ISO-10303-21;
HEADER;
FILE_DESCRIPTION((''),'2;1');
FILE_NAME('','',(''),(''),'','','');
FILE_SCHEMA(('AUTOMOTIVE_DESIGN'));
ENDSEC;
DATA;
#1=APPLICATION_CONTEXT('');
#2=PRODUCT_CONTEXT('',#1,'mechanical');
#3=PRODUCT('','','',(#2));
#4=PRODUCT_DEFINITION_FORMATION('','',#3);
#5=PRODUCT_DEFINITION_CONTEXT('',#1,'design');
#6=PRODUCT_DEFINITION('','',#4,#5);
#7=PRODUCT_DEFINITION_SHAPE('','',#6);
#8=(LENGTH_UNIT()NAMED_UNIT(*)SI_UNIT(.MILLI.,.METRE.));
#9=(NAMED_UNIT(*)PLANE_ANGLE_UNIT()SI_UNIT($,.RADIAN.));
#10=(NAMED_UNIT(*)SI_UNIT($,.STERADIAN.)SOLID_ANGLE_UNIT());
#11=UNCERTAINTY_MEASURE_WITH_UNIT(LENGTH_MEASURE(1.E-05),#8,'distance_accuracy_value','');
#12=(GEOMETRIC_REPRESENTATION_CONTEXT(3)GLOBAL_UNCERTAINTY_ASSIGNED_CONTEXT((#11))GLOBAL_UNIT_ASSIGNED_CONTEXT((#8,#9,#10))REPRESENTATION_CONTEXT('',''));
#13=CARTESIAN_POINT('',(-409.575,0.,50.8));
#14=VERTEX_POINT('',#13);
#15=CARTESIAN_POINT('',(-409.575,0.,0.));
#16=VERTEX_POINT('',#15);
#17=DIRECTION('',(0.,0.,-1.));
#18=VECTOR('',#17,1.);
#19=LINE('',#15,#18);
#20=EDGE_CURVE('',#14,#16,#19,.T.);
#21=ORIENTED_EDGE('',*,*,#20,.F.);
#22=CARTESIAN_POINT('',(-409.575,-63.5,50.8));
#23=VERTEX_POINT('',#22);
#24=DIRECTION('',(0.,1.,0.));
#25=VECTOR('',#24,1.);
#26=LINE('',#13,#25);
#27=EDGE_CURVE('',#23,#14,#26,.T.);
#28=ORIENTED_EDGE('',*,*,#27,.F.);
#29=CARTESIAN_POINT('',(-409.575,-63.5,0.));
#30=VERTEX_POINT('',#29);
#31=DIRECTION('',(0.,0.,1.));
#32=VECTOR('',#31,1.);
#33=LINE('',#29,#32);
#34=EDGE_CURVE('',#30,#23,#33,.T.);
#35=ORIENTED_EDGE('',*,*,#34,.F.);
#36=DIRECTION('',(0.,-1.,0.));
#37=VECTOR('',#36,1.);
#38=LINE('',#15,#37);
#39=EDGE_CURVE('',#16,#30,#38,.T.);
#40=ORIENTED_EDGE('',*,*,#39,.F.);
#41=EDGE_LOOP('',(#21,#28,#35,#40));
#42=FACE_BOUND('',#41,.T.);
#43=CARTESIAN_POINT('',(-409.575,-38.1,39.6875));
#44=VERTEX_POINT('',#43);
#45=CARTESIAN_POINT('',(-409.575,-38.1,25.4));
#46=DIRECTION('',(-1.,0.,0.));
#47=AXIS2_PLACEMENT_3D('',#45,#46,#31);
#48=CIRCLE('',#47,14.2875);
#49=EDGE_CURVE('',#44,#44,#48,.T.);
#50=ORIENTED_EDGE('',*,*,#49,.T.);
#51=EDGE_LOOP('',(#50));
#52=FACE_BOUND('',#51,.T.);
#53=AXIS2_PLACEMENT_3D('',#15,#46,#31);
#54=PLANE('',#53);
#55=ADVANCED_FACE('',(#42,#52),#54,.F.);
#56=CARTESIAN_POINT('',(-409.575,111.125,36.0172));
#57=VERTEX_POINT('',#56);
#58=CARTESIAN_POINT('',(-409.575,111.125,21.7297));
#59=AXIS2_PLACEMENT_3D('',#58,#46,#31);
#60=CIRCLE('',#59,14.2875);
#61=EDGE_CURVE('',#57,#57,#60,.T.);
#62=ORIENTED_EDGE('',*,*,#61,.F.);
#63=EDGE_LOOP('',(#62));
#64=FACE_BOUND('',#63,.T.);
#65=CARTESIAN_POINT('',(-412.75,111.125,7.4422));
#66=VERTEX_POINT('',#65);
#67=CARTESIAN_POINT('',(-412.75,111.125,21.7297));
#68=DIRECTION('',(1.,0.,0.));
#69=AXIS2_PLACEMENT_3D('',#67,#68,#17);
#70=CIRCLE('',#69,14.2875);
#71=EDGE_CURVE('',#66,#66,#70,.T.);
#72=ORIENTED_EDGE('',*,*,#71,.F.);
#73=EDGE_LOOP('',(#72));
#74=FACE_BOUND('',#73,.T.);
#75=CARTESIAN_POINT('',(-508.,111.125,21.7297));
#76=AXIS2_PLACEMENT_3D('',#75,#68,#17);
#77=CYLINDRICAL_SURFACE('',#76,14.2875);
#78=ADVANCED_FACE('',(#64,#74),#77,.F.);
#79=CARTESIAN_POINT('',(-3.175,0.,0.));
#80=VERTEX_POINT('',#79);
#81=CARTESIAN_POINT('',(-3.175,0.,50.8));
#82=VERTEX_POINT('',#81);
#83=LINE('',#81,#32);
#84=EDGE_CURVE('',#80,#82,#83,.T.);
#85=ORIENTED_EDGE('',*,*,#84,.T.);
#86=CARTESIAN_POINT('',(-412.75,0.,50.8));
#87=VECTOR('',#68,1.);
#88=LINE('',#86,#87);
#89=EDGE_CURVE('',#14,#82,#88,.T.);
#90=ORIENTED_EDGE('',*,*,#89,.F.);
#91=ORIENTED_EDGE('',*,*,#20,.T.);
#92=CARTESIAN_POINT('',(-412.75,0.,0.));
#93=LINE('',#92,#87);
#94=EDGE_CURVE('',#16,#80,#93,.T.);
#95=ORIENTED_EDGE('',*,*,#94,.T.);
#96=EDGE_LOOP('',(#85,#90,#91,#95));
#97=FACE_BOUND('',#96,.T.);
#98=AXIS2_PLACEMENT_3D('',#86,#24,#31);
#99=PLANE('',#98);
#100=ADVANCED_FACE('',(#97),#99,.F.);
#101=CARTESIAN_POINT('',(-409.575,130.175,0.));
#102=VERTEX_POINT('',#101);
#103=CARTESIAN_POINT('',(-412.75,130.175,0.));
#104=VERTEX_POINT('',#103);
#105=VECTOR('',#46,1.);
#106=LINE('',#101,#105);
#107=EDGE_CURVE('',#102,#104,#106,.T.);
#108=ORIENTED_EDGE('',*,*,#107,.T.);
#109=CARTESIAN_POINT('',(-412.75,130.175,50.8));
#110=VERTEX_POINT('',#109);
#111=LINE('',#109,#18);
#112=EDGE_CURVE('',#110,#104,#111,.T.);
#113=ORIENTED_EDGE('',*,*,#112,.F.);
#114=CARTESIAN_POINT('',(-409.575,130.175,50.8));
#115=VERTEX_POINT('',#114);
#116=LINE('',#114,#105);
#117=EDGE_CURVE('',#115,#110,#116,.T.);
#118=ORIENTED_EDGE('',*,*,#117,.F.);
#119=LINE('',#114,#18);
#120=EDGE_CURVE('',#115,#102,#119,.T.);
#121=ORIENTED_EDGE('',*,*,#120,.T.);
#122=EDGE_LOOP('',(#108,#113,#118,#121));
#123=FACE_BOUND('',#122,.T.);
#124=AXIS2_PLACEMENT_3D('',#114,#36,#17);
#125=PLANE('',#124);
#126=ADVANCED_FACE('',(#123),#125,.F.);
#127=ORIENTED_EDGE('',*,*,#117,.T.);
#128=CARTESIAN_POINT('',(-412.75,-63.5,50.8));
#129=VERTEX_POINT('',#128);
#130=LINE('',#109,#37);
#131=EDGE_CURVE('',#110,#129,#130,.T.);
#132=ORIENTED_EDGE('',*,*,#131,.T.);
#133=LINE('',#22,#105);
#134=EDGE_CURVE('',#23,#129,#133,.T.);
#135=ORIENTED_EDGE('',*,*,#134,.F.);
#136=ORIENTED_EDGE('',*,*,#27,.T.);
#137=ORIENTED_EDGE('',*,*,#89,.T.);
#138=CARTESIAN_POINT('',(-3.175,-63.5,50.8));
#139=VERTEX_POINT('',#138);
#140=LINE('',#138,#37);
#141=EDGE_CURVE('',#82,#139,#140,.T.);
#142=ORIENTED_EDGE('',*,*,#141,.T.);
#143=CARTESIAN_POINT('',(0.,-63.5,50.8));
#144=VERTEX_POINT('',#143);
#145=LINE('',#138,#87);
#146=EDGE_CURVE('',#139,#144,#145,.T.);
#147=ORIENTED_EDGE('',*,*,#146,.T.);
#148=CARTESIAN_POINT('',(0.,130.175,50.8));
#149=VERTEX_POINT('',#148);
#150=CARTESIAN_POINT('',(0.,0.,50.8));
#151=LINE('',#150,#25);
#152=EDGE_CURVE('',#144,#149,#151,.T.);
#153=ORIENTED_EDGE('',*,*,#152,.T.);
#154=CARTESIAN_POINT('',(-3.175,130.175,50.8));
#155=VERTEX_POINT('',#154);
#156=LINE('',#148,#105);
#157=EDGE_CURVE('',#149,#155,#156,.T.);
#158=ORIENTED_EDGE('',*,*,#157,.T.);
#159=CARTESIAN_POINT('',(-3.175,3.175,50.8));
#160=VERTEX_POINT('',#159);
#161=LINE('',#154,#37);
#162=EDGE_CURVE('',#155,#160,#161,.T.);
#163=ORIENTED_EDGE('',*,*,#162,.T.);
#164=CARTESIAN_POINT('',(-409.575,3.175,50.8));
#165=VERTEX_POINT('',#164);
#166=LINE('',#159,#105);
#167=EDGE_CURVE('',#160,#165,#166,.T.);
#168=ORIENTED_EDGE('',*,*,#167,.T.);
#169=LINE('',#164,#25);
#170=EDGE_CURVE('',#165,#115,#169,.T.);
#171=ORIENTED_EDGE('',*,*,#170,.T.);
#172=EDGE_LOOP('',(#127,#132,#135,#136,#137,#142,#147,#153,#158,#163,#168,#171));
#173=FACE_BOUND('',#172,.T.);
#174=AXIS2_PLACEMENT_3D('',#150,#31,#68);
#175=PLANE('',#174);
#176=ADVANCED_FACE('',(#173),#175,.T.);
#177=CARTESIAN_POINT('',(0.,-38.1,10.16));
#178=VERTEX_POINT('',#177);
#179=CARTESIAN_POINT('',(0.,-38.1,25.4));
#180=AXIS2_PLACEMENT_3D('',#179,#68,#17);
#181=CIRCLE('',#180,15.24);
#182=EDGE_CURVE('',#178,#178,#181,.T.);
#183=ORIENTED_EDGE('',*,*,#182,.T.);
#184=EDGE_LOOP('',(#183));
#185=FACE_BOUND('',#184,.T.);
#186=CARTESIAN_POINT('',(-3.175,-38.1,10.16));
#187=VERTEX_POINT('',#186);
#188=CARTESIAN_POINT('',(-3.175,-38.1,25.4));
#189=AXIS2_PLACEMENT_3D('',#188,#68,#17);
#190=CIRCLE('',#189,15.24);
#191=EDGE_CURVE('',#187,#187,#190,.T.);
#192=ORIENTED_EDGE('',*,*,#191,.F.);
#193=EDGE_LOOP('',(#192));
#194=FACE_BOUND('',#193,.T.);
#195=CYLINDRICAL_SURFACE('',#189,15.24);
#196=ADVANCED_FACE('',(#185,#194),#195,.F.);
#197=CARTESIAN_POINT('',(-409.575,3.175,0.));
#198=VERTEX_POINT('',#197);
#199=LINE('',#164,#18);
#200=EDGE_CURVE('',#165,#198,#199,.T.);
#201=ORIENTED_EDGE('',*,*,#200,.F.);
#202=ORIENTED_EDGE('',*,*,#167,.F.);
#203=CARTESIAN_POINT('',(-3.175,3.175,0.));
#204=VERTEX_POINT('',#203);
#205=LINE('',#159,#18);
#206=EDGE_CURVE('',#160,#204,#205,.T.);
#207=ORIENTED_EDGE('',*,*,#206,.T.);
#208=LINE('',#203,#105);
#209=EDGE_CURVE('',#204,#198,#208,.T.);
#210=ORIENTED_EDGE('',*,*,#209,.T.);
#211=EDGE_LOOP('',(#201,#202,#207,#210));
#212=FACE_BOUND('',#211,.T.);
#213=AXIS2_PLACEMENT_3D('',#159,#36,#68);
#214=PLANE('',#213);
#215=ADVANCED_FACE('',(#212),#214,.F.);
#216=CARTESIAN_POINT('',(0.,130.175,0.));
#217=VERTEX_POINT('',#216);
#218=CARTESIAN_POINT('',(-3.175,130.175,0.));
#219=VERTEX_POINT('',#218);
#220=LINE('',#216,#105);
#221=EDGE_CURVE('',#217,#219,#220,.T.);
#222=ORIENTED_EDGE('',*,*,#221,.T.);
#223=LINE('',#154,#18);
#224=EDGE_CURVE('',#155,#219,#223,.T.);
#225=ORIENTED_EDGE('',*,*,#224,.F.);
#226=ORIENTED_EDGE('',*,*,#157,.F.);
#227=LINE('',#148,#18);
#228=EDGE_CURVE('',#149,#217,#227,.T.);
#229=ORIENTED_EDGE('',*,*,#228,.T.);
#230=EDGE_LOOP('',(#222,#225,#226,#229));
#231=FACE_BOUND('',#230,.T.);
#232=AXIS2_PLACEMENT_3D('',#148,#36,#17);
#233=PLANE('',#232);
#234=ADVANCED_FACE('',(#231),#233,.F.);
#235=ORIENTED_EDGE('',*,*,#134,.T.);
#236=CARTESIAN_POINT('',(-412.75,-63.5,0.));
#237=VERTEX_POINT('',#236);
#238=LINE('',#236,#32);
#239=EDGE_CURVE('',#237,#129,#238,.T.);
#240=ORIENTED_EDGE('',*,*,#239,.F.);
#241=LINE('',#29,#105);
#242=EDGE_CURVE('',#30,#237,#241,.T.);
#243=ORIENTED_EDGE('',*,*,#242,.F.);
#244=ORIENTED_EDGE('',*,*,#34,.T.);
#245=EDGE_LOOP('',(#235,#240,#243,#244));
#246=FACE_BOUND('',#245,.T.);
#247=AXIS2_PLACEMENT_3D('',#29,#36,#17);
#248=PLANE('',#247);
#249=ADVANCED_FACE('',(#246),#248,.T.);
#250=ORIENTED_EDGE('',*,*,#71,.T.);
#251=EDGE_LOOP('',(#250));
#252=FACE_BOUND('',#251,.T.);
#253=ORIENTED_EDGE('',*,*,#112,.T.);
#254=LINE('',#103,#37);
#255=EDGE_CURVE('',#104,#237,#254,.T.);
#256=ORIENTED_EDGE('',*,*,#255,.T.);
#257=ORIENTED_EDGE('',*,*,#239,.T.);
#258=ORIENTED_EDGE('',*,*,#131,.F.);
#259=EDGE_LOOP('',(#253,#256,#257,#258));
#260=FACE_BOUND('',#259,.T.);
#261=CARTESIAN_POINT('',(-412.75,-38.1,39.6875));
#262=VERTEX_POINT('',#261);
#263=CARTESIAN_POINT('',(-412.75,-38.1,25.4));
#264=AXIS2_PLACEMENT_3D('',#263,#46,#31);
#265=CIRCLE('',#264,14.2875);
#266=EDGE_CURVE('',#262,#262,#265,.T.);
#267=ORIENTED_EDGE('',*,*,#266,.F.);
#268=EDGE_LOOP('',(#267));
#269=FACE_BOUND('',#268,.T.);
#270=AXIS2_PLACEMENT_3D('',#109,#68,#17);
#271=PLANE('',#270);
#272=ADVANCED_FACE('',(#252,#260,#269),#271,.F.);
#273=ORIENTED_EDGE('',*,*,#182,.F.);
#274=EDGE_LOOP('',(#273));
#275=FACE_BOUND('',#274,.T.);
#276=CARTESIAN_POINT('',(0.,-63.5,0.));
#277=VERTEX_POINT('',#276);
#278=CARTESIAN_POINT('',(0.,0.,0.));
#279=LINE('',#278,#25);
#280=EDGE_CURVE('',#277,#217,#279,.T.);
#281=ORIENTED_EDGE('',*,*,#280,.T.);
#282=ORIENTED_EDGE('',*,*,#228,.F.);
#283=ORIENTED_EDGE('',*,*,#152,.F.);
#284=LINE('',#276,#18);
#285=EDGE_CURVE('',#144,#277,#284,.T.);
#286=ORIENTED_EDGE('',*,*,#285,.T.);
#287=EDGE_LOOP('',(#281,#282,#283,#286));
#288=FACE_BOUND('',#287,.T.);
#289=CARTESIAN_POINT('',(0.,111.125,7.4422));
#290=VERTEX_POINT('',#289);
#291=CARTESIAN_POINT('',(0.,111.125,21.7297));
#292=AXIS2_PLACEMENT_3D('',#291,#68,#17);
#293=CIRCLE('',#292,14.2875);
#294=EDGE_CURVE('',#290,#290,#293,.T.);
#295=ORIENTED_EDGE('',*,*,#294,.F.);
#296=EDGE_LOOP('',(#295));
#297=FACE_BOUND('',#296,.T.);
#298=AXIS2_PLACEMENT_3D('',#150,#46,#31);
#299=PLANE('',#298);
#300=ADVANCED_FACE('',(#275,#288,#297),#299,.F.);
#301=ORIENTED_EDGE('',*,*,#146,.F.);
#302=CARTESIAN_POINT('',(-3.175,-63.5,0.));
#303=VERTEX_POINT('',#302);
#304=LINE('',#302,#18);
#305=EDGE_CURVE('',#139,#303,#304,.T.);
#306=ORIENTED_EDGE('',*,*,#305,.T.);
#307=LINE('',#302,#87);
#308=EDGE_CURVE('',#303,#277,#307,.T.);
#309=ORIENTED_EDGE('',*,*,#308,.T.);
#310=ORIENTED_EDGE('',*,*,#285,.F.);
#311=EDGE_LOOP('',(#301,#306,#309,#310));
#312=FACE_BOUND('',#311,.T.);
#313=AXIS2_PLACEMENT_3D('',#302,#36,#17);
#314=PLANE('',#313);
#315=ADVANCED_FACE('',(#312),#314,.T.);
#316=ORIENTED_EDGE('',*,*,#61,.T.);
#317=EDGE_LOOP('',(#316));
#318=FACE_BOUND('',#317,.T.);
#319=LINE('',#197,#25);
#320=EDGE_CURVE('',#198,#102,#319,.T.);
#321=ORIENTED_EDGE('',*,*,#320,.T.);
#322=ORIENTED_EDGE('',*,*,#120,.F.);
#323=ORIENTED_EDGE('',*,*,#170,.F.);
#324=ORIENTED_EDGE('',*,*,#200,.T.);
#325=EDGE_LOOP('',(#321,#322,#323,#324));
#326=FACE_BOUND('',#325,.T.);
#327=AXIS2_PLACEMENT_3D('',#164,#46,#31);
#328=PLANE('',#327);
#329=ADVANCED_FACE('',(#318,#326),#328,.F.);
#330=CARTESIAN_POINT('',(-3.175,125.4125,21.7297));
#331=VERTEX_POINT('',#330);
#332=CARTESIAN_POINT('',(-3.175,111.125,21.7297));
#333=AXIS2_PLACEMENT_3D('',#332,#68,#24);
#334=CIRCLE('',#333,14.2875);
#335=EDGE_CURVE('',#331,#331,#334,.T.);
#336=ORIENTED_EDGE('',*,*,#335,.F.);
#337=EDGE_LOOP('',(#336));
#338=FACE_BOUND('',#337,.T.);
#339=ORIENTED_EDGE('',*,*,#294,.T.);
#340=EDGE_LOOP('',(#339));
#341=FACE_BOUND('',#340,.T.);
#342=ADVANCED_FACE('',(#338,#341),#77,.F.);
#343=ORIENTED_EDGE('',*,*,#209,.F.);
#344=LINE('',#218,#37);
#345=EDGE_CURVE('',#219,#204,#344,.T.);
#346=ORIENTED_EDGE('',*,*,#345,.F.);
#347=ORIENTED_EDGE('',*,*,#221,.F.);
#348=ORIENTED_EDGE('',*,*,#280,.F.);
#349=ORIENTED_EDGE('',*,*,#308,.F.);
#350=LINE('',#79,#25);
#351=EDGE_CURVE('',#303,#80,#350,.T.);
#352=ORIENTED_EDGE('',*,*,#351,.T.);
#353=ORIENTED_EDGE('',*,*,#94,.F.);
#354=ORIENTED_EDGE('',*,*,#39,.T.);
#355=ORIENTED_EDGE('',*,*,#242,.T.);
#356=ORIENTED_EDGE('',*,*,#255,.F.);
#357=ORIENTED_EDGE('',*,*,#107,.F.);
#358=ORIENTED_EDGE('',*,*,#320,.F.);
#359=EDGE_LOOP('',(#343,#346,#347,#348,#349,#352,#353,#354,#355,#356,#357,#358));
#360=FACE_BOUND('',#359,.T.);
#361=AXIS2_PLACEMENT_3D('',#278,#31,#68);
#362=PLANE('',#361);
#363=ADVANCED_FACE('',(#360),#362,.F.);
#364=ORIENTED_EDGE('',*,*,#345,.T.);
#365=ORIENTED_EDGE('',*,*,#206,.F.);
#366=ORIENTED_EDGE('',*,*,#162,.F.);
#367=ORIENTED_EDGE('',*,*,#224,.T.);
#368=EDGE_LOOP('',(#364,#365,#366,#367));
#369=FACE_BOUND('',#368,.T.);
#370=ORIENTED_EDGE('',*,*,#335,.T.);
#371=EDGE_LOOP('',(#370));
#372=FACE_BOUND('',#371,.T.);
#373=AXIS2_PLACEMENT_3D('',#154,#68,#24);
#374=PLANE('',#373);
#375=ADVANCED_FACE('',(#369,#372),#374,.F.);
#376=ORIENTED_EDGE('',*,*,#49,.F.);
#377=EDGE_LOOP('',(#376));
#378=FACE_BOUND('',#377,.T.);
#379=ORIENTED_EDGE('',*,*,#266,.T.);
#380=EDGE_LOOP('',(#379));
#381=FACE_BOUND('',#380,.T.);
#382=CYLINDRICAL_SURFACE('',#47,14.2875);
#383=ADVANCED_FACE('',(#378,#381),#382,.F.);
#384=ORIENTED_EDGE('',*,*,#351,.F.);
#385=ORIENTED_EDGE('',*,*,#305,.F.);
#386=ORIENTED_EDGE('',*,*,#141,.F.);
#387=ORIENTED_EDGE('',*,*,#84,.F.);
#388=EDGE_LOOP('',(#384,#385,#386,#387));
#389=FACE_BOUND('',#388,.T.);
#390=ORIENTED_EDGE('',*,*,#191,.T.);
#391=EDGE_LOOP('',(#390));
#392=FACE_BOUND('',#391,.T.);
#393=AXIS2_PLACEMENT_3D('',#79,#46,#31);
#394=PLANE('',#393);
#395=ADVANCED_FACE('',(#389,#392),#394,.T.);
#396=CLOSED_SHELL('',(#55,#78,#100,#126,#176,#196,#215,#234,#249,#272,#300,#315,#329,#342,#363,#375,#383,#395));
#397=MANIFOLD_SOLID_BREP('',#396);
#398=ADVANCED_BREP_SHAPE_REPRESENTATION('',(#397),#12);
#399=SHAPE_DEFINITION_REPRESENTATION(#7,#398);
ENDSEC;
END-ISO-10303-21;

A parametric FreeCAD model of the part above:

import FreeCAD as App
import Part
import Sketcher
Q = App.Units.Quantity

doc = App.newDocument("Part")
body = doc.addObject("PartDesign::Body", "Body")

sketch1 = body.newObject("Sketcher::SketchObject", "Sketch")
sketch1.AttachmentSupport = (doc.getObject("XY_Plane"), [""])
sketch1.MapMode = "FlatFace"
sketch1.addGeometry([
    Part.LineSegment(App.Vector(0, 0, 0), App.Vector(0, 130.2, 0)),
    Part.LineSegment(App.Vector(0, 130.2, 0), App.Vector(-3.2, 130.2, 0)),
    Part.LineSegment(App.Vector(-3.2, 130.2, 0), App.Vector(-3.2, 3.2, 0)),
    Part.LineSegment(App.Vector(-3.2, 3.2, 0), App.Vector(-409.6, 3.2, 0)),
    Part.LineSegment(App.Vector(-409.6, 3.2, 0), App.Vector(-409.6, 130.2, 0)),
    Part.LineSegment(App.Vector(-409.6, 130.2, 0), App.Vector(-412.8, 130.2, 0)),
    Part.LineSegment(App.Vector(-412.8, 130.2, 0), App.Vector(-412.8, 0, 0)),
    Part.LineSegment(App.Vector(-412.8, 0, 0), App.Vector(0, 0, 0)),
], False)
sketch1.addConstraint([
    Sketcher.Constraint("Coincident", 0, 2, 1, 1),
    Sketcher.Constraint("Coincident", 1, 2, 2, 1),
    Sketcher.Constraint("Coincident", 2, 2, 3, 1),
    Sketcher.Constraint("Coincident", 3, 2, 4, 1),
    Sketcher.Constraint("Coincident", 4, 2, 5, 1),
    Sketcher.Constraint("Coincident", 5, 2, 6, 1),
    Sketcher.Constraint("Coincident", 6, 2, 7, 1),
    Sketcher.Constraint("Coincident", 7, 2, 0, 1),
    Sketcher.Constraint("Vertical", 0),
    Sketcher.Constraint("Horizontal", 1),
    Sketcher.Constraint("Vertical", 2),
    Sketcher.Constraint("Horizontal", 3),
    Sketcher.Constraint("Vertical", 4),
    Sketcher.Constraint("Horizontal", 5),
    Sketcher.Constraint("Vertical", 6),
    Sketcher.Constraint("Horizontal", 7),
    Sketcher.Constraint("Coincident", 7, 2, -1, 1),
    Sketcher.Constraint("Horizontal", 1, 2, 4, 2),
    Sketcher.Constraint("Equal", 1, 5),
    Sketcher.Constraint("DistanceX", 3, 2, 3, 1, Q("16 in")),
    Sketcher.Constraint("DistanceY", 2, 2, 2, 1, Q("5 in")),
    Sketcher.Constraint("DistanceX", 7, 1, 7, 2, Q("16.25 in")),
    Sketcher.Constraint("DistanceY", 0, 1, 0, 2, Q("5.125 in")),
])
pad1 = body.newObject("PartDesign::Pad", "Pad")
pad1.Profile = sketch1
pad1.Length = Q("2 in")

sketch2 = body.newObject("Sketcher::SketchObject", "Sketch001")
sketch2.AttachmentSupport = (doc.getObject("YZ_Plane"), [""])
sketch2.MapMode = "FlatFace"
sketch2.AttachmentOffset = App.Placement(App.Vector(0, 0, -16.25 * 25.4), App.Rotation())
sketch2.addGeometry([
    Part.LineSegment(App.Vector(0, 0, 0), App.Vector(-64, 0, 0)),
    Part.LineSegment(App.Vector(-64, 0, 0), App.Vector(-64, 51, 0)),
    Part.LineSegment(App.Vector(-64, 51, 0), App.Vector(0, 51, 0)),
    Part.LineSegment(App.Vector(0, 51, 0), App.Vector(0, 0, 0)),
    Part.Circle(App.Vector(-38, 25, 0), App.Vector(0, 0, 1), 14),
], False)
sketch2.addConstraint([
    Sketcher.Constraint("Coincident", 0, 2, 1, 1),
    Sketcher.Constraint("Coincident", 1, 2, 2, 1),
    Sketcher.Constraint("Coincident", 2, 2, 3, 1),
    Sketcher.Constraint("Coincident", 3, 2, 0, 1),
    Sketcher.Constraint("Horizontal", 0),
    Sketcher.Constraint("Vertical", 1),
    Sketcher.Constraint("Horizontal", 2),
    Sketcher.Constraint("Vertical", 3),
    Sketcher.Constraint("Coincident", 3, 2, -1, 1),
    Sketcher.Constraint("DistanceY", 1, 1, 1, 2, Q("2 in")),
    Sketcher.Constraint("Diameter", 4, Q("1.125 in")),
    Sketcher.Constraint("DistanceX", 0, 2, 0, 1, Q("2.5 in")),
    Sketcher.Constraint("DistanceY", -1, 1, 4, 3, Q("1 in")),
    Sketcher.Constraint("DistanceX", 0, 2, 4, 3, Q("1 in")),
])
pad2 = body.newObject("PartDesign::Pad", "Pad001")
pad2.Profile = sketch2
pad2.Length = Q("0.125 in")

sketch3 = body.newObject("Sketcher::SketchObject", "Sketch002")
sketch3.AttachmentSupport = (doc.getObject("YZ_Plane"), [""])
sketch3.MapMode = "FlatFace"
sketch3.addGeometry([
    Part.LineSegment(App.Vector(0, 51, 0), App.Vector(-64, 51, 0)),
    Part.LineSegment(App.Vector(-64, 51, 0), App.Vector(-64, 0, 0)),
    Part.LineSegment(App.Vector(-64, 0, 0), App.Vector(0, 0, 0)),
    Part.LineSegment(App.Vector(0, 0, 0), App.Vector(0, 51, 0)),
    Part.Circle(App.Vector(-38, 25, 0), App.Vector(0, 0, 1), 15),
], False)
sketch3.addConstraint([
    Sketcher.Constraint("Coincident", 0, 2, 1, 1),
    Sketcher.Constraint("Coincident", 1, 2, 2, 1),
    Sketcher.Constraint("Coincident", 2, 2, 3, 1),
    Sketcher.Constraint("Coincident", 3, 2, 0, 1),
    Sketcher.Constraint("Horizontal", 0),
    Sketcher.Constraint("Vertical", 1),
    Sketcher.Constraint("Horizontal", 2),
    Sketcher.Constraint("Vertical", 3),
    Sketcher.Constraint("Coincident", 2, 2, -1, 1),
    Sketcher.Constraint("Diameter", 4, Q("1.2 in")),
    Sketcher.Constraint("DistanceY", 1, 2, 1, 1, Q("2 in")),
    Sketcher.Constraint("DistanceX", 0, 2, 0, 1, Q("2.5 in")),
    Sketcher.Constraint("DistanceY", -1, 1, 4, 3, Q("1 in")),
    Sketcher.Constraint("DistanceX", 0, 2, 4, 3, Q("1 in")),
])
pad3 = body.newObject("PartDesign::Pad", "Pad002")
pad3.Profile = sketch3
pad3.Length = Q("0.125 in")
pad3.Reversed = True

sketch4 = body.newObject("Sketcher::SketchObject", "Sketch003")
sketch4.AttachmentSupport = (doc.getObject("YZ_Plane"), [""])
sketch4.MapMode = "FlatFace"
sketch4.addGeometry(Part.Circle(App.Vector(111, 22, 0), App.Vector(0, 0, 1), 14), False)
sketch4.addConstraint([
    Sketcher.Constraint("Diameter", 0, Q("1.125 in")),
    Sketcher.Constraint("DistanceX", -1, 1, 0, 3, Q("4.375 in")),
    Sketcher.Constraint("DistanceY", -1, 1, 0, 3, Q("0.8555 in")),
])
pocket1 = body.newObject("PartDesign::Pocket", "Pocket")
pocket1.Profile = sketch4
pocket1.Length = Q("20 in")

doc.recompute()
